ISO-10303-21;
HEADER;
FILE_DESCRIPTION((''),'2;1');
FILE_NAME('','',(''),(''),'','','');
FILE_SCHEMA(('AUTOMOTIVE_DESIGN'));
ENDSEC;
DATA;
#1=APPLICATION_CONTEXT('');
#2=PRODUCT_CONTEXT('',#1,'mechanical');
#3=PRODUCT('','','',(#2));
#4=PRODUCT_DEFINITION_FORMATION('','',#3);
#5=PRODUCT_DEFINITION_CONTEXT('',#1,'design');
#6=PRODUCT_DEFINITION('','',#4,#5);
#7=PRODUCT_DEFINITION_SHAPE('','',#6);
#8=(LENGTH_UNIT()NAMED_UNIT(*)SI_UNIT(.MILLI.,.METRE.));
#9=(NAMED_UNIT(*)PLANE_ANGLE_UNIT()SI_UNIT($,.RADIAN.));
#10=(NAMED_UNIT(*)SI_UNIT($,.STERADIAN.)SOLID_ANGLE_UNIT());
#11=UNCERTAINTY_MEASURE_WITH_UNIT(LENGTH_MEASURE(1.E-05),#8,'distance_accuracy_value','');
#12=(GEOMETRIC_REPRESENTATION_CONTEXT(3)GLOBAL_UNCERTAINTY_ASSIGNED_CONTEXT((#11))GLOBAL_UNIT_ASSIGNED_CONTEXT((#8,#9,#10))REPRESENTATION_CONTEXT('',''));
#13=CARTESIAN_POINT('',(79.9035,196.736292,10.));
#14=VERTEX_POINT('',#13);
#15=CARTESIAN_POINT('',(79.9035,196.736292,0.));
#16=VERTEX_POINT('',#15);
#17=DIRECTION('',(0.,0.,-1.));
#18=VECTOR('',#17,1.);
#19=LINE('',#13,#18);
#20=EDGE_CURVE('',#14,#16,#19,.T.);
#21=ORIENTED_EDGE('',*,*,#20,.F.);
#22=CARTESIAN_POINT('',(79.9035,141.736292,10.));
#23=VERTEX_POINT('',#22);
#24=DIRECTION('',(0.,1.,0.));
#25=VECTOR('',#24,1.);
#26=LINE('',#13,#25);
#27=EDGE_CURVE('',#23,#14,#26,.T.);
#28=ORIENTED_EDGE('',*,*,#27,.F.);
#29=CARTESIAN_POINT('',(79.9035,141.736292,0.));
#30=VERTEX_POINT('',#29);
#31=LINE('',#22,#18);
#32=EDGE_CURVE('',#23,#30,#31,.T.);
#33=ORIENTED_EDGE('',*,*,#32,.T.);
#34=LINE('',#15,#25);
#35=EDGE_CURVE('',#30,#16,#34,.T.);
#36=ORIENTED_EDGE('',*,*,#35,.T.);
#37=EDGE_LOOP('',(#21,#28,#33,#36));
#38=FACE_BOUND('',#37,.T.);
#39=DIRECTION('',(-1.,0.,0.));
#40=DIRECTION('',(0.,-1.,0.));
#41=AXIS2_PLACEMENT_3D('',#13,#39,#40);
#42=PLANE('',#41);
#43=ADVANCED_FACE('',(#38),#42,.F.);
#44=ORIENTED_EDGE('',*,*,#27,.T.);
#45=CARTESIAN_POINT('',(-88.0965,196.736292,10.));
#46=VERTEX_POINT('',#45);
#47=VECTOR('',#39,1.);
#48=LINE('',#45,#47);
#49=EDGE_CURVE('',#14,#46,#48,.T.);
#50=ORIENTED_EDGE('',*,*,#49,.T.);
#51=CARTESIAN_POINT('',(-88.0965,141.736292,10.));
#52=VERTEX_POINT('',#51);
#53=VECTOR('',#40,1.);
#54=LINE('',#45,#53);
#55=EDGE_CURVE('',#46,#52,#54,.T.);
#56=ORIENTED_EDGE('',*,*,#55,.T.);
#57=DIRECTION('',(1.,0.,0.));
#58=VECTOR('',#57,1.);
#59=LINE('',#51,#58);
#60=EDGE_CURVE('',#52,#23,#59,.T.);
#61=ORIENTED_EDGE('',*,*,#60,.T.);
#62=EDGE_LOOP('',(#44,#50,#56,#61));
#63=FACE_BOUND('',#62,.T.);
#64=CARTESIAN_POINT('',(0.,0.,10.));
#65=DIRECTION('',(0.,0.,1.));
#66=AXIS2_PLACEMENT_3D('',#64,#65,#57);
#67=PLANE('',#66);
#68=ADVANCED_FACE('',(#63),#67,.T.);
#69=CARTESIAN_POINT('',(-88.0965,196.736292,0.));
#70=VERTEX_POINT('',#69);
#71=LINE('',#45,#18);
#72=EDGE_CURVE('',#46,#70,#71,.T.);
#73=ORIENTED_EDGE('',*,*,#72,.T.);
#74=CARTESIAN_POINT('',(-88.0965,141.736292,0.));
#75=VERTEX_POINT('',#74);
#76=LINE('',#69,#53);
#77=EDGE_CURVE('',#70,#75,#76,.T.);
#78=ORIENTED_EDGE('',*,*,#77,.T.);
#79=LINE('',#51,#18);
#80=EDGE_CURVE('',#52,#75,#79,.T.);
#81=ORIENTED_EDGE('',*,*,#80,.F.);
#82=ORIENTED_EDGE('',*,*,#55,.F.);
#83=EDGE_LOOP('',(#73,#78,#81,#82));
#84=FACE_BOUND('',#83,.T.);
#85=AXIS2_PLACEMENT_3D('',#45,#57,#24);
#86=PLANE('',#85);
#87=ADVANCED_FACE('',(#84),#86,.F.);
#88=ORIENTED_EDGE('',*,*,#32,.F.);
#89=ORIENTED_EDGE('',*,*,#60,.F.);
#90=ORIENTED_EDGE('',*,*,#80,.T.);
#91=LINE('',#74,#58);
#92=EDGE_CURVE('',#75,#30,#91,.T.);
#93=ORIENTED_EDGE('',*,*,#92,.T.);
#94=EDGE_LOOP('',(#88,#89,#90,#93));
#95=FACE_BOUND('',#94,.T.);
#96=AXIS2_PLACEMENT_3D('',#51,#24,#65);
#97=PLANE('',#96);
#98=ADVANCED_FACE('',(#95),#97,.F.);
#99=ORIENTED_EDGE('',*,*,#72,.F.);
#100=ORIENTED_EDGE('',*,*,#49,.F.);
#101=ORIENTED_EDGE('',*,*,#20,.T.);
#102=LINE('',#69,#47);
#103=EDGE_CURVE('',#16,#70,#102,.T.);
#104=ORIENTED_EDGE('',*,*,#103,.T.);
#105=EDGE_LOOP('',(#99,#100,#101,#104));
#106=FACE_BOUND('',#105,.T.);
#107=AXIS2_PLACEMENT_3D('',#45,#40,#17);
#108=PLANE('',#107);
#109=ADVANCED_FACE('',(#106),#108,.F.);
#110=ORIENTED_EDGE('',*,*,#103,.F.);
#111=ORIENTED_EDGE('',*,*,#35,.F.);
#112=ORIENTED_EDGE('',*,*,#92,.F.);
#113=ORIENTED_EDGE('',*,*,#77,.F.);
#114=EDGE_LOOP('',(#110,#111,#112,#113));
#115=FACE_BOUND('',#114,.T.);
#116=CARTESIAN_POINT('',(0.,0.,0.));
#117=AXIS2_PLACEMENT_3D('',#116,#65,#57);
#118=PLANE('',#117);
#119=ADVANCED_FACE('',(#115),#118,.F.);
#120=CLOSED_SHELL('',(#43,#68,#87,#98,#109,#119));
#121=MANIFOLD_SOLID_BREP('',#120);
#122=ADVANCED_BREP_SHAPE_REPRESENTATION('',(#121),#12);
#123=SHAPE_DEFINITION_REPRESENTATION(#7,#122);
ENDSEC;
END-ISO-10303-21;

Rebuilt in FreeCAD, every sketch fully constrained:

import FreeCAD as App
import Part
import Sketcher
from FreeCAD import Vector


def add_polygon(sketch, points):
    """Adds a closed chain of lines whose ends are joined by coincident constraints."""
    first, n = sketch.GeometryCount, len(points)
    for a, b in zip(points, points[1:] + points[:1]):
        sketch.addGeometry(Part.LineSegment(App.Vector(*a, 0), App.Vector(*b, 0)), False)
    for i in range(n):
        sketch.addConstraint(Sketcher.Constraint("Coincident", first + i, 2, first + (i + 1) % n, 1))

doc = App.newDocument("Part")
body = doc.addObject("PartDesign::Body", "Body")

sketch1 = body.newObject("Sketcher::SketchObject", "Sketch")
sketch1.AttachmentSupport = (doc.getObject("XY_Plane"), [""])
sketch1.MapMode = "FlatFace"
add_polygon(sketch1, [(-88, 197), (-88, 142), (80, 142), (80, 197)])
sketch1.addConstraint([
    Sketcher.Constraint("Vertical", 0),
    Sketcher.Constraint("Horizontal", 1),
    Sketcher.Constraint("Vertical", 2),
    Sketcher.Constraint("Horizontal", 3),
    Sketcher.Constraint("DistanceX", 1, 1, 1, 2, 168.0),
    Sketcher.Constraint("DistanceY", 0, 2, 0, 1, 55.0),
    Sketcher.Constraint("DistanceX", 0, 2, -1, 1, 88.0965),
    Sketcher.Constraint("DistanceY", -1, 1, 0, 2, 141.736292),
])
pad1 = body.newObject("PartDesign::Pad", "Pad")
pad1.Profile = sketch1
pad1.Length = 10

doc.recompute()
